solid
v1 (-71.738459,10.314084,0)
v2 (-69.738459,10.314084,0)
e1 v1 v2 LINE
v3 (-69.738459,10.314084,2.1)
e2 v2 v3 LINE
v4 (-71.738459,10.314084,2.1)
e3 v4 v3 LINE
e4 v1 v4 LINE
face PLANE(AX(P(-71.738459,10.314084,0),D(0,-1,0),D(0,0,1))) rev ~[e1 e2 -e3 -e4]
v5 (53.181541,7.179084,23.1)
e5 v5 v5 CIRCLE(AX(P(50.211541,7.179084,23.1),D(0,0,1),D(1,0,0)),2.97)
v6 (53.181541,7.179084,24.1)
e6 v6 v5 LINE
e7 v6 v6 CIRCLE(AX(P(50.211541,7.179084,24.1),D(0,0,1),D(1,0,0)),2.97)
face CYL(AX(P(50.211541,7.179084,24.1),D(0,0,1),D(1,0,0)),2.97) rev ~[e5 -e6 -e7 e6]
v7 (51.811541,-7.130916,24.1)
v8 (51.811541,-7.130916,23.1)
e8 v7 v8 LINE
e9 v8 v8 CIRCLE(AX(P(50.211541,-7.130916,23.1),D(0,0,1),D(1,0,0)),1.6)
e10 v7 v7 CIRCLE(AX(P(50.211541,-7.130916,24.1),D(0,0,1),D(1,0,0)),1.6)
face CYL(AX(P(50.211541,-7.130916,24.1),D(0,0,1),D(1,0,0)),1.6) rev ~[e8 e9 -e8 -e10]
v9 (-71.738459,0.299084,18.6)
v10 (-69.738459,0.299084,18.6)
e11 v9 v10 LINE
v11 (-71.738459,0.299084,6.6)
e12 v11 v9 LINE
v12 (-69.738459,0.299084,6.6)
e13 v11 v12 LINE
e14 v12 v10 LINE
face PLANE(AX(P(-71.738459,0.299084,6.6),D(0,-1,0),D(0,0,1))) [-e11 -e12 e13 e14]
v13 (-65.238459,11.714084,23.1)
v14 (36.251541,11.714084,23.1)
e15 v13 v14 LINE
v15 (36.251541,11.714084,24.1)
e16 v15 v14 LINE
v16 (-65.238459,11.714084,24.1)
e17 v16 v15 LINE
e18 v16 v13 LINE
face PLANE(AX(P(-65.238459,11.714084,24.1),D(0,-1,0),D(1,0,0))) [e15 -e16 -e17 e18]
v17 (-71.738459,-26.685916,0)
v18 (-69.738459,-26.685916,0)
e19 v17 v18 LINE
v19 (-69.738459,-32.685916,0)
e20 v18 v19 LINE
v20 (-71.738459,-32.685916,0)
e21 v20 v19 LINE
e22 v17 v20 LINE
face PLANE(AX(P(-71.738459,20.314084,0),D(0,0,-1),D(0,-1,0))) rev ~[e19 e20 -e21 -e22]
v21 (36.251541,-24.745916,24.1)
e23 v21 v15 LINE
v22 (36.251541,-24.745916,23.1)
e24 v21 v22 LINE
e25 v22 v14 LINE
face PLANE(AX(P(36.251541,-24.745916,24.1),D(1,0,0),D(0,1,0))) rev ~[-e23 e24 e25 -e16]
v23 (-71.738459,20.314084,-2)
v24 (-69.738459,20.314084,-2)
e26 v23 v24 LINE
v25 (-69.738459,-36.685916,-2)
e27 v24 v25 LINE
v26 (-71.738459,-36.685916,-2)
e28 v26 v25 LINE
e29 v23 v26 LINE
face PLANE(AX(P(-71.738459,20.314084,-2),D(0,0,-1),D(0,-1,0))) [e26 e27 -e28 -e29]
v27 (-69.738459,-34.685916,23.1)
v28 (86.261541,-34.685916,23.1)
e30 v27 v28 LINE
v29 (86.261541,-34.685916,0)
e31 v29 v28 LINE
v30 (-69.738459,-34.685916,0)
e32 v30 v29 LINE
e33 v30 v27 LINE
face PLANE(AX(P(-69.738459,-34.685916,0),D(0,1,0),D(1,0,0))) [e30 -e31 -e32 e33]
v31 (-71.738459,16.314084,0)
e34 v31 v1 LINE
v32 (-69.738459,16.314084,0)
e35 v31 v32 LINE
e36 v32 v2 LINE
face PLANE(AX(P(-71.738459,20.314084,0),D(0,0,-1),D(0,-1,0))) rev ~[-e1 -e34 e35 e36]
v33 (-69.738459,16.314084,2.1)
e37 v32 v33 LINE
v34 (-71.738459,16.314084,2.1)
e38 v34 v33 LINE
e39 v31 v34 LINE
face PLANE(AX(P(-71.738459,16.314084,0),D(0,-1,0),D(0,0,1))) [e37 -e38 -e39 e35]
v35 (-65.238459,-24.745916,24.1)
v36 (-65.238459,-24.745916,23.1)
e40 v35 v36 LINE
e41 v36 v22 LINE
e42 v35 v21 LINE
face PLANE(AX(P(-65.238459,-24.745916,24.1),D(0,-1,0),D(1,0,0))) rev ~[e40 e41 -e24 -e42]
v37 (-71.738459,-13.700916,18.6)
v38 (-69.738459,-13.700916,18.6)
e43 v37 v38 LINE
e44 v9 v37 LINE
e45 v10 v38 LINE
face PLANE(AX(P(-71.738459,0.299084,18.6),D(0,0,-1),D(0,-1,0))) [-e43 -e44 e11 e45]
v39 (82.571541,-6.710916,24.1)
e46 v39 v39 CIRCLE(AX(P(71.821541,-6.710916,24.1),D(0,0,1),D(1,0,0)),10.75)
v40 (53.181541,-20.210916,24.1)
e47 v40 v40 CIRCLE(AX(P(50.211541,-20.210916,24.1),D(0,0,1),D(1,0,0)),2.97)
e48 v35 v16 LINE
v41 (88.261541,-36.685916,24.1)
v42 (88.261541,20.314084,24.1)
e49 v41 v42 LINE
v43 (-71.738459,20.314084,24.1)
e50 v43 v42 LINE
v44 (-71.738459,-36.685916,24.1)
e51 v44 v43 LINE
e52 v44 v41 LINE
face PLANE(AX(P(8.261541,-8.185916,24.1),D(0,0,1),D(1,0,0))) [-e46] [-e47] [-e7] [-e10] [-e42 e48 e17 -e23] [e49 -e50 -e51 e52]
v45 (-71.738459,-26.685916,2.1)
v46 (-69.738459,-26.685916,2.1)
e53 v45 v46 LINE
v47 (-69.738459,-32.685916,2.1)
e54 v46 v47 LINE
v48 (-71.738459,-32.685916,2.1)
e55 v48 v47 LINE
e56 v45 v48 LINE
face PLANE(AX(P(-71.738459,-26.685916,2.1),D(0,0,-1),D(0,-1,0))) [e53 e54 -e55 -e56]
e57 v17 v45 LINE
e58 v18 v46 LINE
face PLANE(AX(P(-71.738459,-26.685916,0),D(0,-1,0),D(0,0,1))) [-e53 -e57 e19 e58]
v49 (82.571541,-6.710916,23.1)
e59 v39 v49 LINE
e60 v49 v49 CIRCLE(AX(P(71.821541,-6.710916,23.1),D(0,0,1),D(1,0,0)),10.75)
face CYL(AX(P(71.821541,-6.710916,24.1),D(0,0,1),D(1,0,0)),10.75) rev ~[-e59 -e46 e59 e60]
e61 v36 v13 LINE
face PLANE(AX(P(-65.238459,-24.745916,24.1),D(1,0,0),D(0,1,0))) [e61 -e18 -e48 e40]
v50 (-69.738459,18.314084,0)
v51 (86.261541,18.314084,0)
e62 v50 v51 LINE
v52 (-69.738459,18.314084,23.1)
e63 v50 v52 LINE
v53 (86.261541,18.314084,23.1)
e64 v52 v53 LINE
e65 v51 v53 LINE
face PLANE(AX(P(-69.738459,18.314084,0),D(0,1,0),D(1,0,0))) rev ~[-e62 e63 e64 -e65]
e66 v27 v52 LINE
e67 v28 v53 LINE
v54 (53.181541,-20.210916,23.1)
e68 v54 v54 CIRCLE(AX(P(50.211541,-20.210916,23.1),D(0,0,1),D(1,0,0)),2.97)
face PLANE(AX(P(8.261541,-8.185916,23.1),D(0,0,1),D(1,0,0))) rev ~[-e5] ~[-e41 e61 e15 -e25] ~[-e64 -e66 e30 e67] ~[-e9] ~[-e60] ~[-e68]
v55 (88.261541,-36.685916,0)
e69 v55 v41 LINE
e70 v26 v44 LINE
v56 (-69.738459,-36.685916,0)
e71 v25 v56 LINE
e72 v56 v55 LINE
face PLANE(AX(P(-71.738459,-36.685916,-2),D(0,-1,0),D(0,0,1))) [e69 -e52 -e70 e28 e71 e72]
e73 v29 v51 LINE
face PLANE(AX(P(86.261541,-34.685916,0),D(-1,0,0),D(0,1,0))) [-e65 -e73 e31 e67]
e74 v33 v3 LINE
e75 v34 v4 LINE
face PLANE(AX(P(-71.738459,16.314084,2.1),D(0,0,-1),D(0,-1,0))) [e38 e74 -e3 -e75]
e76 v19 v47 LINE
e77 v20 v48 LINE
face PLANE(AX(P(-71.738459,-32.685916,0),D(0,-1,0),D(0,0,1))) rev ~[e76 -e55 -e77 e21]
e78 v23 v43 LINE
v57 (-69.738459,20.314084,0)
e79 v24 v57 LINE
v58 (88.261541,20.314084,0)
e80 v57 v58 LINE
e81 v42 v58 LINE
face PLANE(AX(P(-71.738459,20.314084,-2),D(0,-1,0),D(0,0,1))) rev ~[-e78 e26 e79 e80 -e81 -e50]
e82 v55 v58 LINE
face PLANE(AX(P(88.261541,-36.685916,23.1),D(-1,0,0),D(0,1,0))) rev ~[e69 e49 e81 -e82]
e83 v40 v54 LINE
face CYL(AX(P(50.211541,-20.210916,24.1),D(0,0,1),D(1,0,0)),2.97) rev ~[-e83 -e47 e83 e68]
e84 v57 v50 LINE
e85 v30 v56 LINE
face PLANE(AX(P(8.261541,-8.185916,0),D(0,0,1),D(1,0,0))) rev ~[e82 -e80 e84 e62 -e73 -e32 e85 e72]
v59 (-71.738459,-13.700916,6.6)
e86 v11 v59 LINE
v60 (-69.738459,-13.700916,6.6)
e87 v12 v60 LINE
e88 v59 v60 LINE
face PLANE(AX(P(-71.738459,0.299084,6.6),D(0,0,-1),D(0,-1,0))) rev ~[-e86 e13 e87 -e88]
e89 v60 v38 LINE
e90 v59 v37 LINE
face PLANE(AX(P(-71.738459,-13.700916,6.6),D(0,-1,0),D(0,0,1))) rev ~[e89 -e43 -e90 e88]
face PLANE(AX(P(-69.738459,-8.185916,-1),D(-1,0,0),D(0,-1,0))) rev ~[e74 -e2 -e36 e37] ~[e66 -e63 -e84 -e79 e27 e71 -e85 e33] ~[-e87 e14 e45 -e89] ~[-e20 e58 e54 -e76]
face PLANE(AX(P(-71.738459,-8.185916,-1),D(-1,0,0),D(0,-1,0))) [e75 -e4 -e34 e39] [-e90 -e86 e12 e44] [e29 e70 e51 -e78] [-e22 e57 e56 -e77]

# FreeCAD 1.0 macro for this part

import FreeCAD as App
import Part
import Sketcher

V = App.Vector


def add_polygon(sketch, points):
    """Adds a closed chain of lines whose ends are joined by coincident constraints."""
    first, n = sketch.GeometryCount, len(points)
    for a, b in zip(points, points[1:] + points[:1]):
        sketch.addGeometry(Part.LineSegment(App.Vector(*a, 0), App.Vector(*b, 0)), False)
    for i in range(n):
        sketch.addConstraint(Sketcher.Constraint("Coincident", first + i, 2, first + (i + 1) % n, 1))

doc = App.newDocument("Part")
body = doc.addObject("PartDesign::Body", "Body")

sketch1 = body.newObject("Sketcher::SketchObject", "Sketch")
sketch1.AttachmentSupport = (doc.getObject("XY_Plane"), [""])
sketch1.MapMode = "FlatFace"
add_polygon(sketch1, [(-72, 20), (-72, -37), (88, -37), (88, 20)])
add_polygon(sketch1, [(86, -35), (-70, -35), (-70, 18), (86, 18)])
sketch1.addConstraint(Sketcher.Constraint("Vertical", 0))
sketch1.addConstraint(Sketcher.Constraint("Horizontal", 1))
sketch1.addConstraint(Sketcher.Constraint("Vertical", 2))
sketch1.addConstraint(Sketcher.Constraint("Horizontal", 3))
sketch1.addConstraint(Sketcher.Constraint("Horizontal", 4))
sketch1.addConstraint(Sketcher.Constraint("Vertical", 5))
sketch1.addConstraint(Sketcher.Constraint("Horizontal", 6))
sketch1.addConstraint(Sketcher.Constraint("Vertical", 7))
sketch1.addConstraint(Sketcher.Constraint("DistanceX", 1, 1, 1, 2, 160.0))
sketch1.addConstraint(Sketcher.Constraint("DistanceX", 4, 2, 4, 1, 156.0))
sketch1.addConstraint(Sketcher.Constraint("DistanceY", 0, 2, 0, 1, 57.0))
sketch1.addConstraint(Sketcher.Constraint("DistanceY", 5, 1, 5, 2, 53.0))
sketch1.addConstraint(Sketcher.Constraint("DistanceX", 0, 2, 4, 2, 2.0))
sketch1.addConstraint(Sketcher.Constraint("DistanceY", 0, 2, 4, 2, 2.0))
sketch1.addConstraint(Sketcher.Constraint("DistanceX", 0, 2, -1, 1, 71.738459))
sketch1.addConstraint(Sketcher.Constraint("DistanceY", 0, 2, -1, 1, 36.685916))
pad1 = body.newObject("PartDesign::Pad", "Pad")
pad1.Profile = sketch1
pad1.Length = 23.1

sketch2 = body.newObject("Sketcher::SketchObject", "Sketch001")
sketch2.AttachmentSupport = (doc.getObject("XY_Plane"), [""])
sketch2.MapMode = "FlatFace"
sketch2.AttachmentOffset = App.Placement(V(0, 0, 23.1), App.Rotation())
add_polygon(sketch2, [(-72, 20), (-72, -37), (88, -37), (88, 20)])
sketch2.addConstraint(Sketcher.Constraint("Vertical", 0))
sketch2.addConstraint(Sketcher.Constraint("Horizontal", 1))
sketch2.addConstraint(Sketcher.Constraint("Vertical", 2))
sketch2.addConstraint(Sketcher.Constraint("Horizontal", 3))
sketch2.addConstraint(Sketcher.Constraint("DistanceX", 1, 1, 1, 2, 160.0))
sketch2.addConstraint(Sketcher.Constraint("DistanceY", 0, 2, 0, 1, 57.0))
sketch2.addConstraint(Sketcher.Constraint("DistanceX", 0, 2, -1, 1, 71.738459))
sketch2.addConstraint(Sketcher.Constraint("DistanceY", 0, 2, -1, 1, 36.685916))
pad2 = body.newObject("PartDesign::Pad", "Pad001")
pad2.Profile = sketch2
pad2.Length = 1

sketch3 = body.newObject("Sketcher::SketchObject", "Sketch002")
sketch3.AttachmentSupport = (doc.getObject("XY_Plane"), [""])
sketch3.MapMode = "FlatFace"
sketch3.AttachmentOffset = App.Placement(V(0, 0, 24.1), App.Rotation())
sketch3.addGeometry(Part.Circle(V(71.8, -6.7, 0), V(0, 0, 1), 10.8), False)
sketch3.addGeometry(Part.Circle(V(50.2, -20.2, 0), V(0, 0, 1), 3), False)
sketch3.addGeometry(Part.Circle(V(50.2, 7.2, 0), V(0, 0, 1), 3), False)
sketch3.addGeometry(Part.Circle(V(50.2, -7.1, 0), V(0, 0, 1), 1.6), False)
add_polygon(sketch3, [(-65.2, 11.7), (-65.2, -24.7), (36.3, -24.7), (36.3, 11.7)])
sketch3.addConstraint(Sketcher.Constraint("Vertical", 4))
sketch3.addConstraint(Sketcher.Constraint("Horizontal", 5))
sketch3.addConstraint(Sketcher.Constraint("Vertical", 6))
sketch3.addConstraint(Sketcher.Constraint("Horizontal", 7))
sketch3.addConstraint(Sketcher.Constraint("Equal", 1, 2))
sketch3.addConstraint(Sketcher.Constraint("Vertical", 1, 3, 2, 3))
sketch3.addConstraint(Sketcher.Constraint("Vertical", 2, 3, 3, 3))
sketch3.addConstraint(Sketcher.Constraint("Diameter", 0, 21.5))
sketch3.addConstraint(Sketcher.Constraint("Diameter", 3, 3.2))
sketch3.addConstraint(Sketcher.Constraint("Diameter", 1, 5.94))
sketch3.addConstraint(Sketcher.Constraint("DistanceX", 5, 1, 5, 2, 101.49))
sketch3.addConstraint(Sketcher.Constraint("DistanceY", 4, 2, 4, 1, 36.46))
sketch3.addConstraint(Sketcher.Constraint("DistanceY", 1, 3, 0, 3, 13.5))
sketch3.addConstraint(Sketcher.Constraint("DistanceX", 1, 3, 0, 3, 21.61))
sketch3.addConstraint(Sketcher.Constraint("DistanceY", 0, 3, 2, 3, 13.89))
sketch3.addConstraint(Sketcher.Constraint("DistanceY", 1, 3, 3, 3, 13.08))
sketch3.addConstraint(Sketcher.Constraint("DistanceX", 4, 2, 1, 3, 115.45))
sketch3.addConstraint(Sketcher.Constraint("DistanceY", 4, 2, 1, 3, 4.535))
sketch3.addConstraint(Sketcher.Constraint("DistanceX", -1, 1, 0, 3, 71.821541))
sketch3.addConstraint(Sketcher.Constraint("DistanceY", 0, 3, -1, 1, 6.710916))
pocket1 = body.newObject("PartDesign::Pocket", "Pocket")
pocket1.Profile = sketch3
pocket1.Length = 1

sketch4 = body.newObject("Sketcher::SketchObject", "Sketch003")
sketch4.AttachmentSupport = (doc.getObject("YZ_Plane"), [""])
sketch4.MapMode = "FlatFace"
sketch4.AttachmentOffset = App.Placement(V(0, 0, -71.738459), App.Rotation())
add_polygon(sketch4, [(16.3, 2.1), (16.3, 0), (10.3, 0), (10.3, 2.1)])
add_polygon(sketch4, [(0.3, 18.6), (0.3, 6.6), (-13.7, 6.6), (-13.7, 18.6)])
add_polygon(sketch4, [(-26.7, 2.1), (-26.7, 0), (-32.7, 0), (-32.7, 2.1)])
sketch4.addConstraint(Sketcher.Constraint("Vertical", 0))
sketch4.addConstraint(Sketcher.Constraint("Horizontal", 1))
sketch4.addConstraint(Sketcher.Constraint("Vertical", 2))
sketch4.addConstraint(Sketcher.Constraint("Horizontal", 3))
sketch4.addConstraint(Sketcher.Constraint("Vertical", 4))
sketch4.addConstraint(Sketcher.Constraint("Horizontal", 5))
sketch4.addConstraint(Sketcher.Constraint("Vertical", 6))
sketch4.addConstraint(Sketcher.Constraint("Horizontal", 7))
sketch4.addConstraint(Sketcher.Constraint("Vertical", 8))
sketch4.addConstraint(Sketcher.Constraint("Horizontal", 9))
sketch4.addConstraint(Sketcher.Constraint("Vertical", 10))
sketch4.addConstraint(Sketcher.Constraint("Horizontal", 11))
sketch4.addConstraint(Sketcher.Constraint("PointOnObject", 0, 2, -1))
sketch4.addConstraint(Sketcher.Constraint("PointOnObject", 8, 2, -1))
sketch4.addConstraint(Sketcher.Constraint("Horizontal", 3, 2, 10, 2))
sketch4.addConstraint(Sketcher.Constraint("Equal", 3, 9))
sketch4.addConstraint(Sketcher.Constraint("DistanceX", 1, 2, 1, 1, 6.0))
sketch4.addConstraint(Sketcher.Constraint("DistanceX", 5, 2, 5, 1, 14.0))
sketch4.addConstraint(Sketcher.Constraint("DistanceY", 4, 2, 4, 1, 12.0))
sketch4.addConstraint(Sketcher.Constraint("DistanceY", 0, 2, 0, 1, 2.1))
sketch4.addConstraint(Sketcher.Constraint("DistanceX", 8, 2, 1, 2, 37.0))
sketch4.addConstraint(Sketcher.Constraint("DistanceY", -1, 1, 4, 2, 6.6))
sketch4.addConstraint(Sketcher.Constraint("DistanceX", 4, 2, 2, 2, 10.015))
sketch4.addConstraint(Sketcher.Constraint("DistanceX", -1, 1, 0, 2, 16.314084))
pocket2 = body.newObject("PartDesign::Pocket", "Pocket001")
pocket2.Profile = sketch4
pocket2.Length = 5
pocket2.Reversed = True

sketch5 = body.newObject("Sketcher::SketchObject", "Sketch004")
sketch5.AttachmentSupport = (doc.getObject("YZ_Plane"), [""])
sketch5.MapMode = "FlatFace"
sketch5.AttachmentOffset = App.Placement(V(0, 0, -71.738459), App.Rotation())
add_polygon(sketch5, [(20.3, 0), (20.3, -2), (-36.7, -2), (-36.7, 0)])
sketch5.addConstraint(Sketcher.Constraint("Vertical", 0))
sketch5.addConstraint(Sketcher.Constraint("Horizontal", 1))
sketch5.addConstraint(Sketcher.Constraint("Vertical", 2))
sketch5.addConstraint(Sketcher.Constraint("Horizontal", 3))
sketch5.addConstraint(Sketcher.Constraint("PointOnObject", 2, 2, -1))
sketch5.addConstraint(Sketcher.Constraint("DistanceX", 1, 2, 1, 1, 57.0))
sketch5.addConstraint(Sketcher.Constraint("DistanceY", 0, 2, 0, 1, 2.0))
sketch5.addConstraint(Sketcher.Constraint("DistanceX", -1, 1, 0, 2, 20.314084))
pad3 = body.newObject("PartDesign::Pad", "Pad002")
pad3.Profile = sketch5
pad3.Length = 2

doc.recompute()
